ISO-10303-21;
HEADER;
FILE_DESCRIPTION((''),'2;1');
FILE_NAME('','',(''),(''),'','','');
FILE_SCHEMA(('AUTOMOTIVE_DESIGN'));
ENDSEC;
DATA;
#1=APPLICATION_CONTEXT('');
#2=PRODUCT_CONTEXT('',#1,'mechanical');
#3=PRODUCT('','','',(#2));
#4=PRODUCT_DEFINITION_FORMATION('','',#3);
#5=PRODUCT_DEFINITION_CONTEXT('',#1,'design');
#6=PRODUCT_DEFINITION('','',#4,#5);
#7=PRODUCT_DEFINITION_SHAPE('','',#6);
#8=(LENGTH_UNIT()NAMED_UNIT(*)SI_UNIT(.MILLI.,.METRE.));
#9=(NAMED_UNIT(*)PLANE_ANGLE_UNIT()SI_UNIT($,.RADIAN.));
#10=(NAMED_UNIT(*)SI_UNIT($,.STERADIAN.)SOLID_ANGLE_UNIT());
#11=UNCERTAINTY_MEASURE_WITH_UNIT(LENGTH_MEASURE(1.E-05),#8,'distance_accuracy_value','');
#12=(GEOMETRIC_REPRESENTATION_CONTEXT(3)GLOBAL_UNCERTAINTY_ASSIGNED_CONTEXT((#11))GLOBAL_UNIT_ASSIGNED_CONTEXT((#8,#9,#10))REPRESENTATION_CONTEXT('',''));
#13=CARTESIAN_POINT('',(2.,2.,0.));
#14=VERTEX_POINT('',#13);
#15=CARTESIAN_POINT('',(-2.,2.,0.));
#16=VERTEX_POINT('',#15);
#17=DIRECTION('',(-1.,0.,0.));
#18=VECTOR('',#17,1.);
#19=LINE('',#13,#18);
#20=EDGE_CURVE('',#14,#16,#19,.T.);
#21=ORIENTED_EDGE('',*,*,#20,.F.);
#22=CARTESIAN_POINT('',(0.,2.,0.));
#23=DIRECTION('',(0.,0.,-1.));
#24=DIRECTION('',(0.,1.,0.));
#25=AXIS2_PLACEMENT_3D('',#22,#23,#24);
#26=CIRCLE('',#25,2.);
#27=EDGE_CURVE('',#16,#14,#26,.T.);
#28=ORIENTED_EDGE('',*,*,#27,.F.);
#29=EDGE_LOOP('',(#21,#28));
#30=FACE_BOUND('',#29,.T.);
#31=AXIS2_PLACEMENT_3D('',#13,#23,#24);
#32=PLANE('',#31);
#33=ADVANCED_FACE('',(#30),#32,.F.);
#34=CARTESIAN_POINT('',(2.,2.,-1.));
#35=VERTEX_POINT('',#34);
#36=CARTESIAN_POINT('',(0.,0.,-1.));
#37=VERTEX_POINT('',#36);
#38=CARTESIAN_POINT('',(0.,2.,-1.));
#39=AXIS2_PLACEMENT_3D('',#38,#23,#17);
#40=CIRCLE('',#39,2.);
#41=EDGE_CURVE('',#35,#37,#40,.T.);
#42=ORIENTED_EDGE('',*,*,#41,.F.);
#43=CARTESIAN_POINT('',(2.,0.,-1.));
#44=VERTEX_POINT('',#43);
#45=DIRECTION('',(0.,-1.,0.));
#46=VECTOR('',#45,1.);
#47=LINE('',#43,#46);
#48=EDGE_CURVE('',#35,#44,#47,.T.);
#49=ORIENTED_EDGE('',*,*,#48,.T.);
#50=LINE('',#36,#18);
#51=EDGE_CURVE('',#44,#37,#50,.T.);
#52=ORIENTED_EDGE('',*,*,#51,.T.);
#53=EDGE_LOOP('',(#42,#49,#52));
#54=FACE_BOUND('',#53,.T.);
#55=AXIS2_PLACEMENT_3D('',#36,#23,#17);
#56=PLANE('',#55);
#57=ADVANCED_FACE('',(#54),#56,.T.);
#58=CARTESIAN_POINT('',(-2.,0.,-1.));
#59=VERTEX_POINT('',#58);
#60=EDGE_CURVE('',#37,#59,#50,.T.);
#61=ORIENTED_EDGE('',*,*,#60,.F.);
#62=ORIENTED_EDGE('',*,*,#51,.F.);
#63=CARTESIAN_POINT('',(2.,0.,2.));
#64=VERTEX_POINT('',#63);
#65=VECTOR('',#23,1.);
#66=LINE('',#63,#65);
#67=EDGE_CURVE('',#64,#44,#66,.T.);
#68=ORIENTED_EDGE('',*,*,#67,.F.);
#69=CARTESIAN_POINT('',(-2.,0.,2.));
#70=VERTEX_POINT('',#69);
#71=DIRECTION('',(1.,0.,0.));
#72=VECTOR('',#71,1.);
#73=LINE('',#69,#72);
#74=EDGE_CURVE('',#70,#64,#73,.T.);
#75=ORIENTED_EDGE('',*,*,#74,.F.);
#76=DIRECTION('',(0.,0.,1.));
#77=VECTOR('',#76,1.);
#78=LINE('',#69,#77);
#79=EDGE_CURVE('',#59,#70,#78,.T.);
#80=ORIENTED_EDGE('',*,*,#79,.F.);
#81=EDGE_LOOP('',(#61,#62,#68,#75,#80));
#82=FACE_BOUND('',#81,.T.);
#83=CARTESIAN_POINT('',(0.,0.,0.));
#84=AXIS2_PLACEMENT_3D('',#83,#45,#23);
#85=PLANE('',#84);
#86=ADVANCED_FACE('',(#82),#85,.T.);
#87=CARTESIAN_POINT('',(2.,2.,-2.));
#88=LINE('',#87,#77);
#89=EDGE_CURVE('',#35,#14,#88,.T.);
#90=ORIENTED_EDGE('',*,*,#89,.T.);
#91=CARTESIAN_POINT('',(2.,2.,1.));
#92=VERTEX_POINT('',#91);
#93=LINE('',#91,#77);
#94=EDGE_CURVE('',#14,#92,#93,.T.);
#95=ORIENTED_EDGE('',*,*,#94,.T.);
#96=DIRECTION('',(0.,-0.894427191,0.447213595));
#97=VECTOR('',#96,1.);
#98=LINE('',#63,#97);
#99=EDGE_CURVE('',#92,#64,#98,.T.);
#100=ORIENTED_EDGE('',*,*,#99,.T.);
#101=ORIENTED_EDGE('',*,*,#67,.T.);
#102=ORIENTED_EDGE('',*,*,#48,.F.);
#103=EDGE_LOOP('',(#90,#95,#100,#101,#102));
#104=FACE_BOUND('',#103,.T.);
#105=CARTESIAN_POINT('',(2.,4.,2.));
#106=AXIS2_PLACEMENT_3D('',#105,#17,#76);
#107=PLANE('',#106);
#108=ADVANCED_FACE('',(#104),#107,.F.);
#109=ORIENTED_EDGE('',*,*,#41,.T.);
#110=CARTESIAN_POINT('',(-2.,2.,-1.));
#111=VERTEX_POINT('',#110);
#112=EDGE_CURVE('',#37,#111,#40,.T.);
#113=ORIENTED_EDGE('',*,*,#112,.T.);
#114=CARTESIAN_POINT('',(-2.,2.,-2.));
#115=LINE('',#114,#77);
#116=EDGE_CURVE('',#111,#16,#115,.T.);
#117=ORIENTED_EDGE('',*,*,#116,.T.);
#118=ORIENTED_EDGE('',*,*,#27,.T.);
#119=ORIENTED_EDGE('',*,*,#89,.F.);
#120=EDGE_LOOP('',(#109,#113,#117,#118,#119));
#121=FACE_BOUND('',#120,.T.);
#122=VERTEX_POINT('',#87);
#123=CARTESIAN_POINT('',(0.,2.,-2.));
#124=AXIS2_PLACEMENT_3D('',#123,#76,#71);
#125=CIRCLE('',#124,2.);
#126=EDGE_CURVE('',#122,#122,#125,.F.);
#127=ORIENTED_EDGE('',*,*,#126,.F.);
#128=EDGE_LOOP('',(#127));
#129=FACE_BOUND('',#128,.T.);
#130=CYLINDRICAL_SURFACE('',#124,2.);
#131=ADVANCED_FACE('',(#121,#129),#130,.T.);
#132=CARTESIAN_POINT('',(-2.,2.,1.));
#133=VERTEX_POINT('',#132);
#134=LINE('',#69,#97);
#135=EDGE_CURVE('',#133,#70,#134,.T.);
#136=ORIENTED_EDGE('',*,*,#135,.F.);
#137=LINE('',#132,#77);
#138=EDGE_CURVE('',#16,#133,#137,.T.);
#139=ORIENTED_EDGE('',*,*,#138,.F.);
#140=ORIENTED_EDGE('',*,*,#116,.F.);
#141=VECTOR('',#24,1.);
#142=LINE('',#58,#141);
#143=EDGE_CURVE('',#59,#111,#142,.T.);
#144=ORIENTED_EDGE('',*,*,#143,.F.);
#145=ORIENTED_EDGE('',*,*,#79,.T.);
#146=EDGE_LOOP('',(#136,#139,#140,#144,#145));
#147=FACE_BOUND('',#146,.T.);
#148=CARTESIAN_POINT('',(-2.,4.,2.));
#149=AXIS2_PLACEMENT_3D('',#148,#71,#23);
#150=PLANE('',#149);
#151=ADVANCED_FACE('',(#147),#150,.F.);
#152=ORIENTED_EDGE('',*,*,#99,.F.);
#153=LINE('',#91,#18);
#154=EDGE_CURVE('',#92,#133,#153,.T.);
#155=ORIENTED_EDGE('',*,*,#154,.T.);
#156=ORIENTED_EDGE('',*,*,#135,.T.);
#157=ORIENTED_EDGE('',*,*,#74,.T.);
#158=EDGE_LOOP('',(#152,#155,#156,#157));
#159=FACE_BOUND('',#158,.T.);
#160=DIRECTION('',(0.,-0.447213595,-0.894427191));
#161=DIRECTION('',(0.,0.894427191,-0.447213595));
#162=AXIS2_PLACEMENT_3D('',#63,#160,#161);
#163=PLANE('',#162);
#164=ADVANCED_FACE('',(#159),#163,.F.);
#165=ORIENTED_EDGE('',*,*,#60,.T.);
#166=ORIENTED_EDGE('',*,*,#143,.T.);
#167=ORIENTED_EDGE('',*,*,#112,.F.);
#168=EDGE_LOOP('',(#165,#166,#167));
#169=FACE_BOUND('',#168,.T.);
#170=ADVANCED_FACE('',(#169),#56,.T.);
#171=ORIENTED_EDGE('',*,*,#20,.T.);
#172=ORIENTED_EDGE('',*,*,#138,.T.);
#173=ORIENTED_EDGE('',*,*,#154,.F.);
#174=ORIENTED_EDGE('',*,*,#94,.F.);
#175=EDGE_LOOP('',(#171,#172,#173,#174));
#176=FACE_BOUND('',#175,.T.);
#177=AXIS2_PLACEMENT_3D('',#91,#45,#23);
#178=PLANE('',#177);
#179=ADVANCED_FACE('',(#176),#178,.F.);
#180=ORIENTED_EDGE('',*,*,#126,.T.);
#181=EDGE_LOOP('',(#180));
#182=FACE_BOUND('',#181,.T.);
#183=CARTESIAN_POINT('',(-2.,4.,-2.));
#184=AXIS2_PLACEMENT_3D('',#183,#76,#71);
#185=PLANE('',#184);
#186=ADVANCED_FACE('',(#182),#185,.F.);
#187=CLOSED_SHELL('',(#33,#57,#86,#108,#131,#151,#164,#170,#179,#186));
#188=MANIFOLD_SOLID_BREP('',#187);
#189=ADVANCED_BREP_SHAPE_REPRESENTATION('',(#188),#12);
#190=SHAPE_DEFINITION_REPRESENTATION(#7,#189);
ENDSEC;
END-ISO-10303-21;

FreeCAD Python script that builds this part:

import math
import FreeCAD as App
import Part
import Sketcher

V = App.Vector
Q = App.Units.Quantity


def add_polygon(sketch, points):
    """Adds a closed chain of lines whose ends are joined by coincident constraints."""
    first, n = sketch.GeometryCount, len(points)
    for a, b in zip(points, points[1:] + points[:1]):
        sketch.addGeometry(Part.LineSegment(App.Vector(*a, 0), App.Vector(*b, 0)), False)
    for i in range(n):
        sketch.addConstraint(Sketcher.Constraint("Coincident", first + i, 2, first + (i + 1) % n, 1))

doc = App.newDocument("Part")
body = doc.addObject("PartDesign::Body", "Body")

# Sketch on XZ plane
sketch1 = body.newObject("Sketcher::SketchObject", "Sketch")
sketch1.AttachmentSupport = (doc.getObject("XZ_Plane"), [""])
sketch1.MapMode = "FlatFace"
add_polygon(sketch1, [(-2, -2), (-2, 2), (2, 2), (2, -2)])  # lines 0-3
sketch1.addConstraint([
    Sketcher.Constraint("Vertical", 0),
    Sketcher.Constraint("Horizontal", 1),
    Sketcher.Constraint("Vertical", 2),
    Sketcher.Constraint("Horizontal", 3),
    Sketcher.Constraint("Symmetric", 0, 2, 2, 2, -1, 1),
    Sketcher.Constraint("Equal", 3, 0),
    Sketcher.Constraint("DistanceX", 1, 1, 1, 2, Q("4 mm")),
])
pad1 = body.newObject("PartDesign::Pad", "Pad")
pad1.Profile = sketch1
pad1.Length = 4
pad1.Reversed = True

# Sketch on XY plane
sketch2 = body.newObject("Sketcher::SketchObject", "Sketch001")
sketch2.AttachmentSupport = (doc.getObject("XY_Plane"), [""])
sketch2.MapMode = "FlatFace"
sketch2.AttachmentOffset = App.Placement(V(0, 0, 2), App.Rotation())
sketch2.addGeometry([
    Part.LineSegment(V(-2, 4, 0), V(-2, 2, 0)),  # 0
    Part.ArcOfCircle(Part.Circle(V(0, 2, 0), V(0, 0, 1), 2), math.radians(90), math.radians(180)),  # 1
    Part.LineSegment(V(0, 4, 0), V(-2, 4, 0)),  # 2
    Part.LineSegment(V(2, 4, 0), V(0, 4, 0)),  # 3
    Part.ArcOfCircle(Part.Circle(V(0, 2, 0), V(0, 0, 1), 2), math.radians(0), math.radians(90)),  # 4
    Part.LineSegment(V(2, 2, 0), V(2, 4, 0)),  # 5
], False)
sketch2.addConstraint([
    Sketcher.Constraint("Tangent", 0, 2, 1, 2),
    Sketcher.Constraint("Tangent", 1, 1, 2, 1),
    Sketcher.Constraint("Coincident", 2, 2, 0, 1),
    Sketcher.Constraint("Tangent", 3, 2, 4, 2),
    Sketcher.Constraint("Tangent", 4, 1, 5, 1),
    Sketcher.Constraint("Coincident", 5, 2, 3, 1),
    Sketcher.Constraint("Vertical", 0),
    Sketcher.Constraint("Horizontal", 2),
    Sketcher.Constraint("Horizontal", 3),
    Sketcher.Constraint("Vertical", 5),
    Sketcher.Constraint("Coincident", 4, 3, 1, 3),
    Sketcher.Constraint("Equal", 1, 4),
    Sketcher.Constraint("PointOnObject", 1, 3, -2),
    Sketcher.Constraint("Radius", 1, Q("2 mm")),
    Sketcher.Constraint("DistanceY", -1, 1, 1, 3, Q("2 mm")),
])
pocket1 = body.newObject("PartDesign::Pocket", "Pocket")
pocket1.Profile = sketch2
pocket1.Length = 4

# Sketch on YZ plane
sketch3 = body.newObject("Sketcher::SketchObject", "Sketch002")
sketch3.AttachmentSupport = (doc.getObject("YZ_Plane"), [""])
sketch3.MapMode = "FlatFace"
sketch3.AttachmentOffset = App.Placement(V(0, 0, -2), App.Rotation())
add_polygon(sketch3, [(2, 1), (0, 2), (4, 2), (4, 0), (2, 0)])  # lines 0-4
sketch3.addConstraint([
    Sketcher.Constraint("Horizontal", 1),
    Sketcher.Constraint("Vertical", 2),
    Sketcher.Constraint("Horizontal", 3),
    Sketcher.Constraint("Vertical", 4),
    Sketcher.Constraint("PointOnObject", 0, 2, -2),
    Sketcher.Constraint("PointOnObject", 2, 2, -1),
    Sketcher.Constraint("Equal", 3, 2),
    Sketcher.Constraint("DistanceX", 1, 1, 1, 2, Q("4 mm")),
    Sketcher.Constraint("DistanceX", 3, 2, 3, 1, Q("2 mm")),
    Sketcher.Constraint("DistanceY", 4, 1, 4, 2, Q("1 mm")),
])
pocket2 = body.newObject("PartDesign::Pocket", "Pocket001")
pocket2.Profile = sketch3
pocket2.Length = 4
pocket2.Reversed = True

# Sketch on XY plane
sketch4 = body.newObject("Sketcher::SketchObject", "Sketch003")
sketch4.AttachmentSupport = (doc.getObject("XY_Plane"), [""])
sketch4.MapMode = "FlatFace"
sketch4.AttachmentOffset = App.Placement(V(0, 0, -2), App.Rotation())
sketch4.addGeometry([
    Part.ArcOfCircle(Part.Circle(V(0, 2, 0), V(0, 0, 1), 2), math.radians(-90), math.radians(0)),  # 0
    Part.LineSegment(V(2, 2, 0), V(2, 0, 0)),  # 1
    Part.LineSegment(V(2, 0, 0), V(0, 0, 0)),  # 2
    Part.ArcOfCircle(Part.Circle(V(0, 2, 0), V(0, 0, 1), 2), math.radians(-180), math.radians(-90)),  # 3
    Part.LineSegment(V(0, 0, 0), V(-2, 0, 0)),  # 4
    Part.LineSegment(V(-2, 0, 0), V(-2, 2, 0)),  # 5
], False)
sketch4.addConstraint([
    Sketcher.Constraint("Tangent", 0, 2, 1, 1),
    Sketcher.Constraint("Coincident", 1, 2, 2, 1),
    Sketcher.Constraint("Tangent", 2, 2, 0, 1),
    Sketcher.Constraint("Tangent", 3, 2, 4, 1),
    Sketcher.Constraint("Coincident", 4, 2, 5, 1),
    Sketcher.Constraint("Tangent", 5, 2, 3, 1),
    Sketcher.Constraint("Vertical", 1),
    Sketcher.Constraint("Horizontal", 2),
    Sketcher.Constraint("Horizontal", 4),
    Sketcher.Constraint("Vertical", 5),
    Sketcher.Constraint("Coincident", 2, 2, -1, 1),
    Sketcher.Constraint("Coincident", 3, 2, -1, 1),
    Sketcher.Constraint("Equal", 0, 3),
    Sketcher.Constraint("Radius", 0, Q("2 mm")),
])
pocket3 = body.newObject("PartDesign::Pocket", "Pocket002")
pocket3.Profile = sketch4
pocket3.Length = 1
pocket3.Reversed = True

doc.recompute()
